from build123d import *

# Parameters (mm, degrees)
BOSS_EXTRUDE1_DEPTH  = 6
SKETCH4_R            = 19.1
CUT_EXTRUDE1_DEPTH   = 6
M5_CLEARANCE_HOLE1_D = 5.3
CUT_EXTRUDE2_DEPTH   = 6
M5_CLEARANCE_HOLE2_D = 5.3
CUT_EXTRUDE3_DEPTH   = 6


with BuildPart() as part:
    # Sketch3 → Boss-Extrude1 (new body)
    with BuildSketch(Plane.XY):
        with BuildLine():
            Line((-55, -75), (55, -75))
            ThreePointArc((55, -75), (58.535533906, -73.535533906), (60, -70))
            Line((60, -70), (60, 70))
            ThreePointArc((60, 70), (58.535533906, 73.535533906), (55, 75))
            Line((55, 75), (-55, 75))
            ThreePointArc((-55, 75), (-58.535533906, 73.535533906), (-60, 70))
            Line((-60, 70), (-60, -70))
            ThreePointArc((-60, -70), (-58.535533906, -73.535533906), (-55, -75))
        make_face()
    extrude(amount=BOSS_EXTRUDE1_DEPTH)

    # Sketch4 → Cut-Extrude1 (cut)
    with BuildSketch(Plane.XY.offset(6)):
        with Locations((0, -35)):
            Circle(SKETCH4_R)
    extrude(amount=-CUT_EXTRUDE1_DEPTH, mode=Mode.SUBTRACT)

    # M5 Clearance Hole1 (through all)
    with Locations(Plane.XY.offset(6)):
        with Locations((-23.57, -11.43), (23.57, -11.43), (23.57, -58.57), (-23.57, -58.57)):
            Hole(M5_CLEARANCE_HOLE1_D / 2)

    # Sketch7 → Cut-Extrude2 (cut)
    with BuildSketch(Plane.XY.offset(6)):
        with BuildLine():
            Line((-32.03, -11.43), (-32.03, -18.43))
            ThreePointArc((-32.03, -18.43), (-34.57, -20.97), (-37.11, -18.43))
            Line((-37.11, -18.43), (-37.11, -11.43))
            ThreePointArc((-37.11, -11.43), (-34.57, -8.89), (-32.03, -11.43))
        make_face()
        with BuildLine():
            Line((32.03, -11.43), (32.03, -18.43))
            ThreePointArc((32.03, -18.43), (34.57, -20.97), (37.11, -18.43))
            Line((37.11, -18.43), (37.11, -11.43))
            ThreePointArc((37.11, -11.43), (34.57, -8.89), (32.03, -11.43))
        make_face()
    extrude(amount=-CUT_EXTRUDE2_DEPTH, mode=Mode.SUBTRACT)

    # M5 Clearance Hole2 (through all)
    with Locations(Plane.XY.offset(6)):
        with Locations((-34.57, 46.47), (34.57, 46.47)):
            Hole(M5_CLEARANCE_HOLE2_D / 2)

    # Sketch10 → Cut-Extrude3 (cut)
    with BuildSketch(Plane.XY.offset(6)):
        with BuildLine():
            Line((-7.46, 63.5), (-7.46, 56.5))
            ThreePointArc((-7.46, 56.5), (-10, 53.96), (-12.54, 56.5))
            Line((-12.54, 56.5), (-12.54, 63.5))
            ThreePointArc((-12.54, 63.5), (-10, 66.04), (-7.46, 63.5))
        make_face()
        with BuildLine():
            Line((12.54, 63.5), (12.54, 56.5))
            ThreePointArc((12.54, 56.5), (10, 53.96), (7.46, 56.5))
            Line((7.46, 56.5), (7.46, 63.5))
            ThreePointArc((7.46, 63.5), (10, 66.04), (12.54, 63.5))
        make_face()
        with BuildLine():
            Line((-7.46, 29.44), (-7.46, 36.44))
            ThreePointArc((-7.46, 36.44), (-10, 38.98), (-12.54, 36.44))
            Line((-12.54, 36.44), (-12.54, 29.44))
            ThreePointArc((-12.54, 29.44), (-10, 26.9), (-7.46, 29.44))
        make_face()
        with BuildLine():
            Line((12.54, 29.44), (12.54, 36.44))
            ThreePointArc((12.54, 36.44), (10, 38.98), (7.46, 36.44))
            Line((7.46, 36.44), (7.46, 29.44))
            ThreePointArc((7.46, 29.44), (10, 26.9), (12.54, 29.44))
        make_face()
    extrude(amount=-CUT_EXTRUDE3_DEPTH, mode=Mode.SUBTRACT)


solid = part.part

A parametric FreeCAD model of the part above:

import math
import FreeCAD as App
import Part
import Sketcher

doc = App.newDocument("Part")
params = doc.addObject("Spreadsheet::Sheet", "Params")
for row, (alias, value) in enumerate([
    ("sketch1_radius", "5 mm"),
    ("sketch1_width", "110 mm"),
    ("sketch1_height", "140 mm"),
    ("pad1_length", "6 mm"),
    ("sketch2_diameter", "38.2 mm"),
    ("pocket1_length", "6 mm"),
    ("sketch3_diameter", "5.3 mm"),
    ("hole_diameter", "5.3 mm"),
    ("sketch4_height", "7 mm"),
    ("sketch4_radius", "2.54 mm"),
    ("pocket2_length", "6 mm"),
    ("sketch5_diameter", "5.3 mm"),
    ("hole2_diameter", "5.3 mm"),
    ("sketch6_height", "7 mm"),
    ("sketch6_radius", "2.54 mm"),
    ("pocket3_length", "6 mm"),
], start=1):
    params.set(f"A{row}", alias)
    params.set(f"B{row}", "=" + value)
    params.setAlias(f"B{row}", alias)

body = doc.addObject("PartDesign::Body", "Body")

# Sketch on XY plane
sketch1 = body.newObject("Sketcher::SketchObject", "Sketch")
sketch1.AttachmentSupport = (doc.getObject("XY_Plane"), [""])
sketch1.MapMode = "FlatFace"
sketch1.addGeometry(Part.LineSegment(App.Vector(-55, -75, 0), App.Vector(55, -75, 0)), False)
sketch1.addGeometry(Part.ArcOfCircle(Part.Circle(App.Vector(55, -70, 0), App.Vector(0, 0, 1), 5), math.radians(-90), math.radians(0)), False)
sketch1.addGeometry(Part.LineSegment(App.Vector(60, -70, 0), App.Vector(60, 70, 0)), False)
sketch1.addGeometry(Part.ArcOfCircle(Part.Circle(App.Vector(55, 70, 0), App.Vector(0, 0, 1), 5), math.radians(0), math.radians(90)), False)
sketch1.addGeometry(Part.LineSegment(App.Vector(55, 75, 0), App.Vector(-55, 75, 0)), False)
sketch1.addGeometry(Part.ArcOfCircle(Part.Circle(App.Vector(-55, 70, 0), App.Vector(0, 0, 1), 5), math.radians(90), math.radians(180)), False)
sketch1.addGeometry(Part.LineSegment(App.Vector(-60, 70, 0), App.Vector(-60, -70, 0)), False)
sketch1.addGeometry(Part.ArcOfCircle(Part.Circle(App.Vector(-55, -70, 0), App.Vector(0, 0, 1), 5), math.radians(180), math.radians(270)), False)
sketch1.addConstraint(Sketcher.Constraint("Tangent", 0, 2, 1, 1))
sketch1.addConstraint(Sketcher.Constraint("Tangent", 1, 2, 2, 1))
sketch1.addConstraint(Sketcher.Constraint("Tangent", 2, 2, 3, 1))
sketch1.addConstraint(Sketcher.Constraint("Tangent", 3, 2, 4, 1))
sketch1.addConstraint(Sketcher.Constraint("Tangent", 4, 2, 5, 1))
sketch1.addConstraint(Sketcher.Constraint("Tangent", 5, 2, 6, 1))
sketch1.addConstraint(Sketcher.Constraint("Tangent", 6, 2, 7, 1))
sketch1.addConstraint(Sketcher.Constraint("Tangent", 7, 2, 0, 1))
sketch1.addConstraint(Sketcher.Constraint("Horizontal", 0))
sketch1.addConstraint(Sketcher.Constraint("Vertical", 2))
sketch1.addConstraint(Sketcher.Constraint("Horizontal", 4))
sketch1.addConstraint(Sketcher.Constraint("Vertical", 6))
sketch1.addConstraint(Sketcher.Constraint("Equal", 1, 3))
sketch1.addConstraint(Sketcher.Constraint("Equal", 3, 5))
sketch1.addConstraint(Sketcher.Constraint("Equal", 5, 7))
sketch1.addConstraint(Sketcher.Constraint("Symmetric", 1, 3, 5, 3, -1, 1))
sketch1.addConstraint(Sketcher.Constraint("Radius", 1, 5.0))
sketch1.addConstraint(Sketcher.Constraint("DistanceX", 0, 1, 0, 2, 110.0))
sketch1.addConstraint(Sketcher.Constraint("DistanceY", 2, 1, 2, 2, 140.0))
sketch1.setExpression("Constraints[16]", "Params.sketch1_radius")
sketch1.setExpression("Constraints[17]", "Params.sketch1_width")
sketch1.setExpression("Constraints[18]", "Params.sketch1_height")
pad1 = body.newObject("PartDesign::Pad", "Pad")
pad1.Profile = sketch1
pad1.setExpression("Length", "Params.pad1_length")

# Sketch on XY plane
sketch2 = body.newObject("Sketcher::SketchObject", "Sketch001")
sketch2.AttachmentSupport = (doc.getObject("XY_Plane"), [""])
sketch2.MapMode = "FlatFace"
sketch2.AttachmentOffset = App.Placement(App.Vector(0, 0, 6), App.Rotation())
sketch2.addGeometry(Part.Circle(App.Vector(0, -35, 0), App.Vector(0, 0, 1), 19), False)
sketch2.addConstraint(Sketcher.Constraint("PointOnObject", 0, 3, -2))
sketch2.addConstraint(Sketcher.Constraint("Diameter", 0, 38.2))
sketch2.addConstraint(Sketcher.Constraint("DistanceY", 0, 3, -1, 1, 35.0))
sketch2.setExpression("Constraints[1]", "Params.sketch2_diameter")
pocket1 = body.newObject("PartDesign::Pocket", "Pocket")
pocket1.Profile = sketch2
pocket1.setExpression("Length", "Params.pocket1_length")

# Sketch on XY plane
sketch3 = body.newObject("Sketcher::SketchObject", "Sketch002")
sketch3.AttachmentSupport = (doc.getObject("XY_Plane"), [""])
sketch3.MapMode = "FlatFace"
sketch3.AttachmentOffset = App.Placement(App.Vector(0, 0, 6), App.Rotation())
sketch3.addGeometry(Part.Circle(App.Vector(-23.6, -11.4, 0), App.Vector(0, 0, 1), 2.6), False)
sketch3.addGeometry(Part.Circle(App.Vector(23.6, -11.4, 0), App.Vector(0, 0, 1), 2.6), False)
sketch3.addGeometry(Part.Circle(App.Vector(23.6, -58.6, 0), App.Vector(0, 0, 1), 2.6), False)
sketch3.addGeometry(Part.Circle(App.Vector(-23.6, -58.6, 0), App.Vector(0, 0, 1), 2.6), False)
sketch3.addConstraint(Sketcher.Constraint("Equal", 0, 1))
sketch3.addConstraint(Sketcher.Constraint("Equal", 1, 2))
sketch3.addConstraint(Sketcher.Constraint("Equal", 2, 3))
sketch3.addConstraint(Sketcher.Constraint("Symmetric", 0, 3, 1, 3, -2))
sketch3.addConstraint(Sketcher.Constraint("Symmetric", 2, 3, 3, 3, -2))
sketch3.addConstraint(Sketcher.Constraint("Vertical", 1, 3, 2, 3))
sketch3.addConstraint(Sketcher.Constraint("Diameter", 0, 5.3))
sketch3.addConstraint(Sketcher.Constraint("DistanceX", 0, 3, -1, 1, 23.57))
sketch3.addConstraint(Sketcher.Constraint("DistanceY", 0, 3, -1, 1, 11.43))
sketch3.addConstraint(Sketcher.Constraint("DistanceY", 2, 3, -1, 1, 58.57))
sketch3.setExpression("Constraints[6]", "Params.sketch3_diameter")
doc.recompute()
hole = body.newObject("PartDesign::Hole", "Hole")
hole.Profile = sketch3
hole.ThreadType = "None"
hole.setExpression("Diameter", "Params.hole_diameter")
hole.DepthType = "ThroughAll"

# Sketch on XY plane
sketch4 = body.newObject("Sketcher::SketchObject", "Sketch003")
sketch4.AttachmentSupport = (doc.getObject("XY_Plane"), [""])
sketch4.MapMode = "FlatFace"
sketch4.AttachmentOffset = App.Placement(App.Vector(0, 0, 6), App.Rotation())
sketch4.addGeometry(Part.LineSegment(App.Vector(-32, -18.4, 0), App.Vector(-32, -11.4, 0)), False)
sketch4.addGeometry(Part.ArcOfCircle(Part.Circle(App.Vector(-34.6, -11.4, 0), App.Vector(0, 0, 1), 2.5), math.radians(0), math.radians(180)), False)
sketch4.addGeometry(Part.LineSegment(App.Vector(-37.1, -11.4, 0), App.Vector(-37.1, -18.4, 0)), False)
sketch4.addGeometry(Part.ArcOfCircle(Part.Circle(App.Vector(-34.6, -18.4, 0), App.Vector(0, 0, 1), 2.5), math.radians(180), math.radians(360)), False)
sketch4.addGeometry(Part.LineSegment(App.Vector(32, -11.4, 0), App.Vector(32, -18.4, 0)), False)
sketch4.addGeometry(Part.ArcOfCircle(Part.Circle(App.Vector(34.6, -18.4, 0), App.Vector(0, 0, 1), 2.5), math.radians(180), math.radians(360)), False)
sketch4.addGeometry(Part.LineSegment(App.Vector(37.1, -18.4, 0), App.Vector(37.1, -11.4, 0)), False)
sketch4.addGeometry(Part.ArcOfCircle(Part.Circle(App.Vector(34.6, -11.4, 0), App.Vector(0, 0, 1), 2.5), math.radians(0), math.radians(180)), False)
sketch4.addConstraint(Sketcher.Constraint("Tangent", 0, 2, 1, 1))
sketch4.addConstraint(Sketcher.Constraint("Tangent", 1, 2, 2, 1))
sketch4.addConstraint(Sketcher.Constraint("Tangent", 2, 2, 3, 1))
sketch4.addConstraint(Sketcher.Constraint("Tangent", 3, 2, 0, 1))
sketch4.addConstraint(Sketcher.Constraint("Tangent", 4, 2, 5, 1))
sketch4.addConstraint(Sketcher.Constraint("Tangent", 5, 2, 6, 1))
sketch4.addConstraint(Sketcher.Constraint("Tangent", 6, 2, 7, 1))
sketch4.addConstraint(Sketcher.Constraint("Tangent", 7, 2, 4, 1))
sketch4.addConstraint(Sketcher.Constraint("Vertical", 0))
sketch4.addConstraint(Sketcher.Constraint("Vertical", 2))
sketch4.addConstraint(Sketcher.Constraint("Vertical", 4))
sketch4.addConstraint(Sketcher.Constraint("Vertical", 6))
sketch4.addConstraint(Sketcher.Constraint("Equal", 3, 5))
sketch4.addConstraint(Sketcher.Constraint("Symmetric", 3, 3, 5, 3, -2))
sketch4.addConstraint(Sketcher.Constraint("Horizontal", 1, 3, 7, 3))
sketch4.addConstraint(Sketcher.Constraint("DistanceY", 0, 1, 0, 2, 7.0))
sketch4.addConstraint(Sketcher.Constraint("Radius", 1, 2.54))
sketch4.addConstraint(Sketcher.Constraint("DistanceX", 0, 2, 7, 3, 66.6))
sketch4.addConstraint(Sketcher.Constraint("DistanceY", 1, 3, -1, 1, 11.43))
sketch4.setExpression("Constraints[15]", "Params.sketch4_height")
sketch4.setExpression("Constraints[16]", "Params.sketch4_radius")
pocket2 = body.newObject("PartDesign::Pocket", "Pocket001")
pocket2.Profile = sketch4
pocket2.setExpression("Length", "Params.pocket2_length")

# Sketch on XY plane
sketch5 = body.newObject("Sketcher::SketchObject", "Sketch004")
sketch5.AttachmentSupport = (doc.getObject("XY_Plane"), [""])
sketch5.MapMode = "FlatFace"
sketch5.AttachmentOffset = App.Placement(App.Vector(0, 0, 6), App.Rotation())
sketch5.addGeometry(Part.Circle(App.Vector(-34.6, 46.5, 0), App.Vector(0, 0, 1), 2.6), False)
sketch5.addGeometry(Part.Circle(App.Vector(34.6, 46.5, 0), App.Vector(0, 0, 1), 2.6), False)
sketch5.addConstraint(Sketcher.Constraint("Equal", 0, 1))
sketch5.addConstraint(Sketcher.Constraint("Symmetric", 0, 3, 1, 3, -2))
sketch5.addConstraint(Sketcher.Constraint("Diameter", 0, 5.3))
sketch5.addConstraint(Sketcher.Constraint("DistanceX", 0, 3, -1, 1, 34.57))
sketch5.addConstraint(Sketcher.Constraint("DistanceY", -1, 1, 0, 3, 46.47))
sketch5.setExpression("Constraints[2]", "Params.sketch5_diameter")
doc.recompute()
hole2 = body.newObject("PartDesign::Hole", "Hole001")
hole2.Profile = sketch5
hole2.ThreadType = "None"
hole2.setExpression("Diameter", "Params.hole2_diameter")
hole2.DepthType = "ThroughAll"

# Sketch on XY plane
sketch6 = body.newObject("Sketcher::SketchObject", "Sketch005")
sketch6.AttachmentSupport = (doc.getObject("XY_Plane"), [""])
sketch6.MapMode = "FlatFace"
sketch6.AttachmentOffset = App.Placement(App.Vector(0, 0, 6), App.Rotation())
sketch6.addGeometry(Part.LineSegment(App.Vector(-7.5, 56.5, 0), App.Vector(-7.5, 63.5, 0)), False)
sketch6.addGeometry(Part.ArcOfCircle(Part.Circle(App.Vector(-10, 63.5, 0), App.Vector(0, 0, 1), 2.5), math.radians(0), math.radians(180)), False)
sketch6.addGeometry(Part.LineSegment(App.Vector(-12.5, 63.5, 0), App.Vector(-12.5, 56.5, 0)), False)
sketch6.addGeometry(Part.ArcOfCircle(Part.Circle(App.Vector(-10, 56.5, 0), App.Vector(0, 0, 1), 2.5), math.radians(180), math.radians(360)), False)
sketch6.addGeometry(Part.LineSegment(App.Vector(12.5, 56.5, 0), App.Vector(12.5, 63.5, 0)), False)
sketch6.addGeometry(Part.ArcOfCircle(Part.Circle(App.Vector(10, 63.5, 0), App.Vector(0, 0, 1), 2.5), math.radians(0), math.radians(180)), False)
sketch6.addGeometry(Part.LineSegment(App.Vector(7.5, 63.5, 0), App.Vector(7.5, 56.5, 0)), False)
sketch6.addGeometry(Part.ArcOfCircle(Part.Circle(App.Vector(10, 56.5, 0), App.Vector(0, 0, 1), 2.5), math.radians(180), math.radians(360)), False)
sketch6.addGeometry(Part.LineSegment(App.Vector(-7.5, 29.4, 0), App.Vector(-7.5, 36.4, 0)), False)
sketch6.addGeometry(Part.ArcOfCircle(Part.Circle(App.Vector(-10, 36.4, 0), App.Vector(0, 0, 1), 2.5), math.radians(0), math.radians(180)), False)
sketch6.addGeometry(Part.LineSegment(App.Vector(-12.5, 36.4, 0), App.Vector(-12.5, 29.4, 0)), False)
sketch6.addGeometry(Part.ArcOfCircle(Part.Circle(App.Vector(-10, 29.4, 0), App.Vector(0, 0, 1), 2.5), math.radians(180), math.radians(360)), False)
sketch6.addGeometry(Part.LineSegment(App.Vector(12.5, 29.4, 0), App.Vector(12.5, 36.4, 0)), False)
sketch6.addGeometry(Part.ArcOfCircle(Part.Circle(App.Vector(10, 36.4, 0), App.Vector(0, 0, 1), 2.5), math.radians(0), math.radians(180)), False)
sketch6.addGeometry(Part.LineSegment(App.Vector(7.5, 36.4, 0), App.Vector(7.5, 29.4, 0)), False)
sketch6.addGeometry(Part.ArcOfCircle(Part.Circle(App.Vector(10, 29.4, 0), App.Vector(0, 0, 1), 2.5), math.radians(180), math.radians(360)), False)
sketch6.addConstraint(Sketcher.Constraint("Tangent", 0, 2, 1, 1))
sketch6.addConstraint(Sketcher.Constraint("Tangent", 1, 2, 2, 1))
sketch6.addConstraint(Sketcher.Constraint("Tangent", 2, 2, 3, 1))
sketch6.addConstraint(Sketcher.Constraint("Tangent", 3, 2, 0, 1))
sketch6.addConstraint(Sketcher.Constraint("Tangent", 4, 2, 5, 1))
sketch6.addConstraint(Sketcher.Constraint("Tangent", 5, 2, 6, 1))
sketch6.addConstraint(Sketcher.Constraint("Tangent", 6, 2, 7, 1))
sketch6.addConstraint(Sketcher.Constraint("Tangent", 7, 2, 4, 1))
sketch6.addConstraint(Sketcher.Constraint("Tangent", 8, 2, 9, 1))
sketch6.addConstraint(Sketcher.Constraint("Tangent", 9, 2, 10, 1))
sketch6.addConstraint(Sketcher.Constraint("Tangent", 10, 2, 11, 1))
sketch6.addConstraint(Sketcher.Constraint("Tangent", 11, 2, 8, 1))
sketch6.addConstraint(Sketcher.Constraint("Tangent", 12, 2, 13, 1))
sketch6.addConstraint(Sketcher.Constraint("Tangent", 13, 2, 14, 1))
sketch6.addConstraint(Sketcher.Constraint("Tangent", 14, 2, 15, 1))
sketch6.addConstraint(Sketcher.Constraint("Tangent", 15, 2, 12, 1))
sketch6.addConstraint(Sketcher.Constraint("Vertical", 0))
sketch6.addConstraint(Sketcher.Constraint("Vertical", 2))
sketch6.addConstraint(Sketcher.Constraint("Vertical", 4))
sketch6.addConstraint(Sketcher.Constraint("Vertical", 6))
sketch6.addConstraint(Sketcher.Constraint("Vertical", 8))
sketch6.addConstraint(Sketcher.Constraint("Vertical", 10))
sketch6.addConstraint(Sketcher.Constraint("Vertical", 12))
sketch6.addConstraint(Sketcher.Constraint("Vertical", 14))
sketch6.addConstraint(Sketcher.Constraint("Equal", 3, 5))
sketch6.addConstraint(Sketcher.Constraint("Equal", 7, 9))
sketch6.addConstraint(Sketcher.Constraint("Equal", 11, 13))
sketch6.addConstraint(Sketcher.Constraint("Symmetric", 1, 3, 5, 3, -2))
sketch6.addConstraint(Sketcher.Constraint("Symmetric", 9, 3, 13, 3, -2))
sketch6.addConstraint(Sketcher.Constraint("Horizontal", 3, 3, 7, 3))
sketch6.addConstraint(Sketcher.Constraint("Horizontal", 11, 3, 15, 3))
sketch6.addConstraint(Sketcher.Constraint("Vertical", 3, 3, 9, 3))
sketch6.addConstraint(Sketcher.Constraint("Equal", 6, 8))
sketch6.addConstraint(Sketcher.Constraint("DistanceY", 0, 1, 0, 2, 7.0))
sketch6.addConstraint(Sketcher.Constraint("Radius", 1, 2.54))
sketch6.addConstraint(Sketcher.Constraint("DistanceX", 1, 3, -1, 1, 10.0))
sketch6.addConstraint(Sketcher.Constraint("DistanceY", -1, 1, 1, 3, 63.5))
sketch6.addConstraint(Sketcher.Constraint("DistanceY", -1, 1, 9, 3, 36.44))
sketch6.setExpression("Constraints[33]", "Params.sketch6_height")
sketch6.setExpression("Constraints[34]", "Params.sketch6_radius")
pocket3 = body.newObject("PartDesign::Pocket", "Pocket002")
pocket3.Profile = sketch6
pocket3.setExpression("Length", "Params.pocket3_length")

doc.recompute()
